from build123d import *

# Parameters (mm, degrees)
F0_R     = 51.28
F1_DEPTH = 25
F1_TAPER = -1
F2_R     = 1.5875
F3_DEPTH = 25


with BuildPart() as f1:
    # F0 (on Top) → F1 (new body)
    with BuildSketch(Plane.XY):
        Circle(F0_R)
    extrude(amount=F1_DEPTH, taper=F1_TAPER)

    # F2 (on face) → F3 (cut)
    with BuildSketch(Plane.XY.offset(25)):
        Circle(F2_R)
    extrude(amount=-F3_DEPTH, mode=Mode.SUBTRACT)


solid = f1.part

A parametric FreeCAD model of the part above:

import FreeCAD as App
import Part
import Sketcher

V = App.Vector
Q = App.Units.Quantity

doc = App.newDocument("Part")
body = doc.addObject("PartDesign::Body", "Body")

# Sketch on XY plane
sketch1 = body.newObject("Sketcher::SketchObject", "Sketch")
sketch1.AttachmentSupport = (doc.getObject("XY_Plane"), [""])
sketch1.MapMode = "FlatFace"
sketch1.addGeometry(Part.Circle(V(0, 0, 0), V(0, 0, 1), 51.28), False)
sketch1.addConstraint(Sketcher.Constraint("Coincident", 0, 3, -1, 1))
sketch1.addConstraint(Sketcher.Constraint("Diameter", 0, Q("102.56 mm")))
pad1 = body.newObject("PartDesign::Pad", "Pad")
pad1.Profile = sketch1
pad1.Length = 25
pad1.TaperAngle = 1

# Sketch on XY plane
sketch2 = body.newObject("Sketcher::SketchObject", "Sketch001")
sketch2.AttachmentSupport = (doc.getObject("XY_Plane"), [""])
sketch2.MapMode = "FlatFace"
sketch2.AttachmentOffset = App.Placement(V(0, 0, 25), App.Rotation())
sketch2.addGeometry(Part.Circle(V(0, 0, 0), V(0, 0, 1), 1.5875), False)
sketch2.addConstraint(Sketcher.Constraint("Coincident", 0, 3, -1, 1))
sketch2.addConstraint(Sketcher.Constraint("Diameter", 0, Q("3.175 mm")))
pocket1 = body.newObject("PartDesign::Pocket", "Pocket")
pocket1.Profile = sketch2
pocket1.Length = 25

doc.recompute()
